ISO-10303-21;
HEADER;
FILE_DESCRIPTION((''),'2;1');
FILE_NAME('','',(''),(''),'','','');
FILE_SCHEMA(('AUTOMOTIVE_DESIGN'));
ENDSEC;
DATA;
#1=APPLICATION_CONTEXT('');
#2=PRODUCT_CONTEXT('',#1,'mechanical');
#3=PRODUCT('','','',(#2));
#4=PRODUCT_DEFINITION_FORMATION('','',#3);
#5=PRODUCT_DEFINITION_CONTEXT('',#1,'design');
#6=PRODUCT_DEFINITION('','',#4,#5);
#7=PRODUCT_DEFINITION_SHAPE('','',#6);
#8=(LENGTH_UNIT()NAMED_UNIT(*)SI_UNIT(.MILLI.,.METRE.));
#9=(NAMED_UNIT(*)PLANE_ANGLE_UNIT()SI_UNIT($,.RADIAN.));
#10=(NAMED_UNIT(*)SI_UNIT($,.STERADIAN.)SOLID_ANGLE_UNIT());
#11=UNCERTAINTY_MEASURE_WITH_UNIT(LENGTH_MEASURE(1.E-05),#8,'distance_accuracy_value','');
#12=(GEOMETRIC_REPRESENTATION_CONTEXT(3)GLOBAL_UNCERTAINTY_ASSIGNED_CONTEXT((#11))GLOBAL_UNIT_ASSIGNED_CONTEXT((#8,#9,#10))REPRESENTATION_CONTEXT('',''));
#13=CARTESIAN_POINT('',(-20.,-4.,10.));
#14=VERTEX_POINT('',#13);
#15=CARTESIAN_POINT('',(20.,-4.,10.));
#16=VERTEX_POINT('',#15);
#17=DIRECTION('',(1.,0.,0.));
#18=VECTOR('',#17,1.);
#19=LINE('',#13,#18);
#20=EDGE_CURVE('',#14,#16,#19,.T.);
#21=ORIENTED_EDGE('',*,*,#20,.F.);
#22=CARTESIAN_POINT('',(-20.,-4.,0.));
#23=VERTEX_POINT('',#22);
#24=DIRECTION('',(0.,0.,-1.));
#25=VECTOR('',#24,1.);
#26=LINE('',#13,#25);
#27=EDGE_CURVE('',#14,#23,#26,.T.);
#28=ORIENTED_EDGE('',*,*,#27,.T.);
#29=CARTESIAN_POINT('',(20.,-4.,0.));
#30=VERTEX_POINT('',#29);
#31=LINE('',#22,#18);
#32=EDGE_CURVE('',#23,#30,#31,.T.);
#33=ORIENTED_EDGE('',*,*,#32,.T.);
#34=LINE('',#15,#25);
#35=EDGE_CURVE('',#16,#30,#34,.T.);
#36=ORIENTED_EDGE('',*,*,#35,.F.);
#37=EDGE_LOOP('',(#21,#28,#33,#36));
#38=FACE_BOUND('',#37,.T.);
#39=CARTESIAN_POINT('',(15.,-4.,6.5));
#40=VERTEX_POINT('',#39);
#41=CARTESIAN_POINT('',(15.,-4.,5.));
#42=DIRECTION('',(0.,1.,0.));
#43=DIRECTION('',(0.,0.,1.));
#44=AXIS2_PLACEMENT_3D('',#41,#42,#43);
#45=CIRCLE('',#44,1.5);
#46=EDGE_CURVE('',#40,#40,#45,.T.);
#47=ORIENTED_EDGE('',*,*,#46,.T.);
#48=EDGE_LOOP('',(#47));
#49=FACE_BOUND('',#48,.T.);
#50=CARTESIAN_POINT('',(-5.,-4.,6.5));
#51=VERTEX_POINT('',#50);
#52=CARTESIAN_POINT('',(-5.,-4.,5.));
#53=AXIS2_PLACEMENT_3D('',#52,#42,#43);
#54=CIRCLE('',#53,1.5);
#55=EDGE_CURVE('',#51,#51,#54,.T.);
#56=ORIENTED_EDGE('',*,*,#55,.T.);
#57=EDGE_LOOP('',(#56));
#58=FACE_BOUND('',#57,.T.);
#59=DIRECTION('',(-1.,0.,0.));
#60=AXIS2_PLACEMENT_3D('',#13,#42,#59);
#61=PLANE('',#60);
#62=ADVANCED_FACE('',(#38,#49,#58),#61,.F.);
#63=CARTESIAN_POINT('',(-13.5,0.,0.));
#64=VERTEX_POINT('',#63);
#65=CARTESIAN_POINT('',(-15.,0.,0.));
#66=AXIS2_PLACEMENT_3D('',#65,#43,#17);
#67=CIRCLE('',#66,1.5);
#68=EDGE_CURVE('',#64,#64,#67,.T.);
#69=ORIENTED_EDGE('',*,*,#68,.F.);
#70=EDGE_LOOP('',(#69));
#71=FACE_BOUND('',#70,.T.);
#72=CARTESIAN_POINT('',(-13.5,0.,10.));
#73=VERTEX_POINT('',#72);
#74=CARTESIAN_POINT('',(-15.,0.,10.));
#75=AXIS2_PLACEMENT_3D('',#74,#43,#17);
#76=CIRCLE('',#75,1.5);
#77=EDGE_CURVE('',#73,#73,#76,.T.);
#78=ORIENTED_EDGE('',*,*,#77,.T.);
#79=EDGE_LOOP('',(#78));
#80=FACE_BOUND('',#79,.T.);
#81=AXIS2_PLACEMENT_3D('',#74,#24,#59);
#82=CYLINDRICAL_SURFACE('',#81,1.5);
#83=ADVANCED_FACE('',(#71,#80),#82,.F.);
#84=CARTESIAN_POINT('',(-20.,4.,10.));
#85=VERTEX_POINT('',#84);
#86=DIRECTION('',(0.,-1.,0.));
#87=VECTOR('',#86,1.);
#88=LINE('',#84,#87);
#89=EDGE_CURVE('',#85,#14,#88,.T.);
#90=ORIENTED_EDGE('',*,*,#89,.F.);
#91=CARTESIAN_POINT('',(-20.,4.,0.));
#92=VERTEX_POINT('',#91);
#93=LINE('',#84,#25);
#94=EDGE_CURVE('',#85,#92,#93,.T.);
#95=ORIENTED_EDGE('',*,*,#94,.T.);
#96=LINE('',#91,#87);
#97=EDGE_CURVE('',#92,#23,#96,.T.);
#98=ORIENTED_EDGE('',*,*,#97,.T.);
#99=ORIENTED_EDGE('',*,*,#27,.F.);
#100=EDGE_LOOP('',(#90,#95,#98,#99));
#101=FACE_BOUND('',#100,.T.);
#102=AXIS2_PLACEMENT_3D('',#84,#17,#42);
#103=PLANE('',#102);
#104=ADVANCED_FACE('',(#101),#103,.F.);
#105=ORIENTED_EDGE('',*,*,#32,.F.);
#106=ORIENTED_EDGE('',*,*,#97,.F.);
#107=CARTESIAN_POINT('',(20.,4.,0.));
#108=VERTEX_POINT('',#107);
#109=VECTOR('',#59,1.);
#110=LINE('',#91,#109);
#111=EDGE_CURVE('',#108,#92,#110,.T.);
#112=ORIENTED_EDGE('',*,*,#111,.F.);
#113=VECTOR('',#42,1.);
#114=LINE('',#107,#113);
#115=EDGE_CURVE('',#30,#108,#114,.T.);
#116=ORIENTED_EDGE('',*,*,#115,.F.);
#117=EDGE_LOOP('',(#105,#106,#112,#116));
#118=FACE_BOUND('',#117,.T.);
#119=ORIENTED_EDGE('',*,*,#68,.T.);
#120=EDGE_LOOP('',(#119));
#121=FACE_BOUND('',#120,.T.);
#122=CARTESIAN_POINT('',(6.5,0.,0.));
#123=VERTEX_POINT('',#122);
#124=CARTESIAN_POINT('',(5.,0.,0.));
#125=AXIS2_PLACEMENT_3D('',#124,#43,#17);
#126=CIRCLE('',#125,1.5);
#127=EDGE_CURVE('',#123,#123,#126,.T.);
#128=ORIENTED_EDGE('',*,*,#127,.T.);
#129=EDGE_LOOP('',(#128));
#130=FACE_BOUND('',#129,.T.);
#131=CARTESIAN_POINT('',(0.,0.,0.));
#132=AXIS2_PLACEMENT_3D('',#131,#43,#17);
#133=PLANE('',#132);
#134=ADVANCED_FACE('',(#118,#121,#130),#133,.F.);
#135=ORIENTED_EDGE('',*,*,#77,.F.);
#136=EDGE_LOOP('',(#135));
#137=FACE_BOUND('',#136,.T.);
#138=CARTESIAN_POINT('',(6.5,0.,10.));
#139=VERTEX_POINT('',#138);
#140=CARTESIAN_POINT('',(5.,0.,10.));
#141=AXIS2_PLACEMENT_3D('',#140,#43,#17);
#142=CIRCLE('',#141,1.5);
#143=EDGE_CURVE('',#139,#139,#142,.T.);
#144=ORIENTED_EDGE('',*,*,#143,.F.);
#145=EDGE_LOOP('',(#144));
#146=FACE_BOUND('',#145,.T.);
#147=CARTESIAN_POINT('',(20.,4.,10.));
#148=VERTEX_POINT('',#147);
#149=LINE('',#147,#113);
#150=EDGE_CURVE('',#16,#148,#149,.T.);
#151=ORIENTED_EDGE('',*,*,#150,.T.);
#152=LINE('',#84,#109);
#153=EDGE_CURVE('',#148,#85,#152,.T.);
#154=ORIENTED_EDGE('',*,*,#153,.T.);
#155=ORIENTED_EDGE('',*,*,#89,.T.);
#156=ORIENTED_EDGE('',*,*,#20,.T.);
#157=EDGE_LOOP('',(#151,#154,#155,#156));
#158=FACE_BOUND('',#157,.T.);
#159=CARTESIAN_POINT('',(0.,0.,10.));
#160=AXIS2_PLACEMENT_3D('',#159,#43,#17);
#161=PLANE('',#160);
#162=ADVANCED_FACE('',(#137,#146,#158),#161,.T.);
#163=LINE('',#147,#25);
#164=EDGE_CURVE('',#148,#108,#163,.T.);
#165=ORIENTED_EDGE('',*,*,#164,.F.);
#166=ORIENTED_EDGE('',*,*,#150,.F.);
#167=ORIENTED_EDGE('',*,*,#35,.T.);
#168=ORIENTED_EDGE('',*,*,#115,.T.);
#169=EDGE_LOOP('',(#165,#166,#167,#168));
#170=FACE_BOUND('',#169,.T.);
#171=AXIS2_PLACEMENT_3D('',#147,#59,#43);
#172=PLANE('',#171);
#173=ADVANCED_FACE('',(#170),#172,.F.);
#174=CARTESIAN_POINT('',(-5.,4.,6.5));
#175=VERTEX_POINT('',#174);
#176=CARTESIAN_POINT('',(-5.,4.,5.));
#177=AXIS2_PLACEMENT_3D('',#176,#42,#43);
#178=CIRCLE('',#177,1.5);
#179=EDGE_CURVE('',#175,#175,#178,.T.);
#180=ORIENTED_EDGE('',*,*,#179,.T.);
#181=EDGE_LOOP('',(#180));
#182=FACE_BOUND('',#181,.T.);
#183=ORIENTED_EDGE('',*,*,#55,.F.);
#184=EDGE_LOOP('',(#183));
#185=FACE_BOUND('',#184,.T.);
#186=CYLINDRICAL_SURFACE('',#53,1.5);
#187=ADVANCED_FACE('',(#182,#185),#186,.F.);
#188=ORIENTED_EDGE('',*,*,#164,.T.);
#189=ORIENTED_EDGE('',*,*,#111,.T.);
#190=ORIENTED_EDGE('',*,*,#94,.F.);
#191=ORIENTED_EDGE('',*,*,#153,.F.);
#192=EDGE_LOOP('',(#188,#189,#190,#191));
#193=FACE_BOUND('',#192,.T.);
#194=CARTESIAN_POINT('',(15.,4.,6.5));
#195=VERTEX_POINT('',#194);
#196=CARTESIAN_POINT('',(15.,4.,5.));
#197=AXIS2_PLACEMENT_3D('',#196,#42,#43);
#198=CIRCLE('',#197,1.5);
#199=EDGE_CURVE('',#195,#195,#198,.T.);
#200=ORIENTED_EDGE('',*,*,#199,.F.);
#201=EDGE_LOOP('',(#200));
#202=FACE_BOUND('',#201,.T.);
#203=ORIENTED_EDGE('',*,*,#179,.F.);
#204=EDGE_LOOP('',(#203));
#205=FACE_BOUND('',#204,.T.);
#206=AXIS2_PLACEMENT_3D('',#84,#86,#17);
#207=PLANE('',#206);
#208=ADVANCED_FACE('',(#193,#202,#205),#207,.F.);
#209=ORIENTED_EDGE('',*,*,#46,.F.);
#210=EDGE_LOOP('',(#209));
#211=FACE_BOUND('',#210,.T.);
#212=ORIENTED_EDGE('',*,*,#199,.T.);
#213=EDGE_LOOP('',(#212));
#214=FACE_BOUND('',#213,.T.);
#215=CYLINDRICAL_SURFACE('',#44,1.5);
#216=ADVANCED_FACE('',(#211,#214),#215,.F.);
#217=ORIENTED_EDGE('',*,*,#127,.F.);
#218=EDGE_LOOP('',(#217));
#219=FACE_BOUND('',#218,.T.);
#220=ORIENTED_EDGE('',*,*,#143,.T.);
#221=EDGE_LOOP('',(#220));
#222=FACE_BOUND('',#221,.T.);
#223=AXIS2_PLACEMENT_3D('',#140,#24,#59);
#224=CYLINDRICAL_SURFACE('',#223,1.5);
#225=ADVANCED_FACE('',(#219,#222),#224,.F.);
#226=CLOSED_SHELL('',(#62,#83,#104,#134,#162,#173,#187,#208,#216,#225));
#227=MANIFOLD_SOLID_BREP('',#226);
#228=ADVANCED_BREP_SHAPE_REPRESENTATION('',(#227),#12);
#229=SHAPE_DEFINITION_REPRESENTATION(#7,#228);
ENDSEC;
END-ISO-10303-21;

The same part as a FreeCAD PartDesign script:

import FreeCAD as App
import Part
import Sketcher
Q = App.Units.Quantity

doc = App.newDocument("Part")
params = doc.addObject("Spreadsheet::Sheet", "Params")
for row, (alias, value) in enumerate([
    ("sketch1_diameter", "3 mm"),
    ("sketch1_width", "40 mm"),
    ("sketch1_height", "8 mm"),
    ("pad1_length", "10 mm"),
    ("sketch2_diameter", "3 mm"),
], start=1):
    params.set(f"A{row}", alias)
    params.set(f"B{row}", "=" + value)
    params.setAlias(f"B{row}", alias)

body = doc.addObject("PartDesign::Body", "Body")

# Sketch on XY plane
sketch1 = body.newObject("Sketcher::SketchObject", "Sketch")
sketch1.AttachmentSupport = (doc.getObject("XY_Plane"), [""])
sketch1.MapMode = "FlatFace"
sketch1.addGeometry(Part.LineSegment(App.Vector(-20, 4, 0), App.Vector(-20, -4, 0)), False)
sketch1.addGeometry(Part.LineSegment(App.Vector(-20, -4, 0), App.Vector(20, -4, 0)), False)
sketch1.addGeometry(Part.LineSegment(App.Vector(20, -4, 0), App.Vector(20, 4, 0)), False)
sketch1.addGeometry(Part.LineSegment(App.Vector(20, 4, 0), App.Vector(-20, 4, 0)), False)
sketch1.addGeometry(Part.Circle(App.Vector(-15, 0, 0), App.Vector(0, 0, 1), 1.5), False)
sketch1.addGeometry(Part.Circle(App.Vector(5, 0, 0), App.Vector(0, 0, 1), 1.5), False)
sketch1.addConstraint(Sketcher.Constraint("Coincident", 0, 2, 1, 1))
sketch1.addConstraint(Sketcher.Constraint("Coincident", 1, 2, 2, 1))
sketch1.addConstraint(Sketcher.Constraint("Coincident", 2, 2, 3, 1))
sketch1.addConstraint(Sketcher.Constraint("Coincident", 3, 2, 0, 1))
sketch1.addConstraint(Sketcher.Constraint("Vertical", 0))
sketch1.addConstraint(Sketcher.Constraint("Horizontal", 1))
sketch1.addConstraint(Sketcher.Constraint("Vertical", 2))
sketch1.addConstraint(Sketcher.Constraint("Horizontal", 3))
sketch1.addConstraint(Sketcher.Constraint("Equal", 4, 5))
sketch1.addConstraint(Sketcher.Constraint("Symmetric", 0, 2, 2, 2, -1, 1))
sketch1.addConstraint(Sketcher.Constraint("PointOnObject", 4, 3, -1))
sketch1.addConstraint(Sketcher.Constraint("PointOnObject", 5, 3, -1))
sketch1.addConstraint(Sketcher.Constraint("Diameter", 4, Q("3 mm")))
sketch1.addConstraint(Sketcher.Constraint("DistanceX", 1, 1, 1, 2, Q("40 mm")))
sketch1.addConstraint(Sketcher.Constraint("DistanceY", 0, 2, 0, 1, Q("8 mm")))
sketch1.addConstraint(Sketcher.Constraint("DistanceX", 4, 3, -1, 1, Q("15 mm")))
sketch1.addConstraint(Sketcher.Constraint("DistanceX", -1, 1, 5, 3, Q("5 mm")))
sketch1.setExpression("Constraints[12]", "Params.sketch1_diameter")
sketch1.setExpression("Constraints[13]", "Params.sketch1_width")
sketch1.setExpression("Constraints[14]", "Params.sketch1_height")
pad1 = body.newObject("PartDesign::Pad", "Pad")
pad1.Profile = sketch1
pad1.setExpression("Length", "Params.pad1_length")

# Sketch on XZ plane
sketch2 = body.newObject("Sketcher::SketchObject", "Sketch001")
sketch2.AttachmentSupport = (doc.getObject("XZ_Plane"), [""])
sketch2.MapMode = "FlatFace"
sketch2.AttachmentOffset = App.Placement(App.Vector(0, 0, -4), App.Rotation())
sketch2.addGeometry(Part.Circle(App.Vector(15, 5, 0), App.Vector(0, 0, 1), 1.5), False)
sketch2.addGeometry(Part.Circle(App.Vector(-5, 5, 0), App.Vector(0, 0, 1), 1.5), False)
sketch2.addConstraint(Sketcher.Constraint("Equal", 0, 1))
sketch2.addConstraint(Sketcher.Constraint("Horizontal", 0, 3, 1, 3))
sketch2.addConstraint(Sketcher.Constraint("Diameter", 0, Q("3 mm")))
sketch2.addConstraint(Sketcher.Constraint("DistanceX", -1, 1, 0, 3, Q("15 mm")))
sketch2.addConstraint(Sketcher.Constraint("DistanceY", -1, 1, 0, 3, Q("5 mm")))
sketch2.addConstraint(Sketcher.Constraint("DistanceX", 1, 3, -1, 1, Q("5 mm")))
sketch2.setExpression("Constraints[2]", "Params.sketch2_diameter")
pocket1 = body.newObject("PartDesign::Pocket", "Pocket")
pocket1.Profile = sketch2
pocket1.Type = "ThroughAll"
pocket1.Reversed = True

doc.recompute()
